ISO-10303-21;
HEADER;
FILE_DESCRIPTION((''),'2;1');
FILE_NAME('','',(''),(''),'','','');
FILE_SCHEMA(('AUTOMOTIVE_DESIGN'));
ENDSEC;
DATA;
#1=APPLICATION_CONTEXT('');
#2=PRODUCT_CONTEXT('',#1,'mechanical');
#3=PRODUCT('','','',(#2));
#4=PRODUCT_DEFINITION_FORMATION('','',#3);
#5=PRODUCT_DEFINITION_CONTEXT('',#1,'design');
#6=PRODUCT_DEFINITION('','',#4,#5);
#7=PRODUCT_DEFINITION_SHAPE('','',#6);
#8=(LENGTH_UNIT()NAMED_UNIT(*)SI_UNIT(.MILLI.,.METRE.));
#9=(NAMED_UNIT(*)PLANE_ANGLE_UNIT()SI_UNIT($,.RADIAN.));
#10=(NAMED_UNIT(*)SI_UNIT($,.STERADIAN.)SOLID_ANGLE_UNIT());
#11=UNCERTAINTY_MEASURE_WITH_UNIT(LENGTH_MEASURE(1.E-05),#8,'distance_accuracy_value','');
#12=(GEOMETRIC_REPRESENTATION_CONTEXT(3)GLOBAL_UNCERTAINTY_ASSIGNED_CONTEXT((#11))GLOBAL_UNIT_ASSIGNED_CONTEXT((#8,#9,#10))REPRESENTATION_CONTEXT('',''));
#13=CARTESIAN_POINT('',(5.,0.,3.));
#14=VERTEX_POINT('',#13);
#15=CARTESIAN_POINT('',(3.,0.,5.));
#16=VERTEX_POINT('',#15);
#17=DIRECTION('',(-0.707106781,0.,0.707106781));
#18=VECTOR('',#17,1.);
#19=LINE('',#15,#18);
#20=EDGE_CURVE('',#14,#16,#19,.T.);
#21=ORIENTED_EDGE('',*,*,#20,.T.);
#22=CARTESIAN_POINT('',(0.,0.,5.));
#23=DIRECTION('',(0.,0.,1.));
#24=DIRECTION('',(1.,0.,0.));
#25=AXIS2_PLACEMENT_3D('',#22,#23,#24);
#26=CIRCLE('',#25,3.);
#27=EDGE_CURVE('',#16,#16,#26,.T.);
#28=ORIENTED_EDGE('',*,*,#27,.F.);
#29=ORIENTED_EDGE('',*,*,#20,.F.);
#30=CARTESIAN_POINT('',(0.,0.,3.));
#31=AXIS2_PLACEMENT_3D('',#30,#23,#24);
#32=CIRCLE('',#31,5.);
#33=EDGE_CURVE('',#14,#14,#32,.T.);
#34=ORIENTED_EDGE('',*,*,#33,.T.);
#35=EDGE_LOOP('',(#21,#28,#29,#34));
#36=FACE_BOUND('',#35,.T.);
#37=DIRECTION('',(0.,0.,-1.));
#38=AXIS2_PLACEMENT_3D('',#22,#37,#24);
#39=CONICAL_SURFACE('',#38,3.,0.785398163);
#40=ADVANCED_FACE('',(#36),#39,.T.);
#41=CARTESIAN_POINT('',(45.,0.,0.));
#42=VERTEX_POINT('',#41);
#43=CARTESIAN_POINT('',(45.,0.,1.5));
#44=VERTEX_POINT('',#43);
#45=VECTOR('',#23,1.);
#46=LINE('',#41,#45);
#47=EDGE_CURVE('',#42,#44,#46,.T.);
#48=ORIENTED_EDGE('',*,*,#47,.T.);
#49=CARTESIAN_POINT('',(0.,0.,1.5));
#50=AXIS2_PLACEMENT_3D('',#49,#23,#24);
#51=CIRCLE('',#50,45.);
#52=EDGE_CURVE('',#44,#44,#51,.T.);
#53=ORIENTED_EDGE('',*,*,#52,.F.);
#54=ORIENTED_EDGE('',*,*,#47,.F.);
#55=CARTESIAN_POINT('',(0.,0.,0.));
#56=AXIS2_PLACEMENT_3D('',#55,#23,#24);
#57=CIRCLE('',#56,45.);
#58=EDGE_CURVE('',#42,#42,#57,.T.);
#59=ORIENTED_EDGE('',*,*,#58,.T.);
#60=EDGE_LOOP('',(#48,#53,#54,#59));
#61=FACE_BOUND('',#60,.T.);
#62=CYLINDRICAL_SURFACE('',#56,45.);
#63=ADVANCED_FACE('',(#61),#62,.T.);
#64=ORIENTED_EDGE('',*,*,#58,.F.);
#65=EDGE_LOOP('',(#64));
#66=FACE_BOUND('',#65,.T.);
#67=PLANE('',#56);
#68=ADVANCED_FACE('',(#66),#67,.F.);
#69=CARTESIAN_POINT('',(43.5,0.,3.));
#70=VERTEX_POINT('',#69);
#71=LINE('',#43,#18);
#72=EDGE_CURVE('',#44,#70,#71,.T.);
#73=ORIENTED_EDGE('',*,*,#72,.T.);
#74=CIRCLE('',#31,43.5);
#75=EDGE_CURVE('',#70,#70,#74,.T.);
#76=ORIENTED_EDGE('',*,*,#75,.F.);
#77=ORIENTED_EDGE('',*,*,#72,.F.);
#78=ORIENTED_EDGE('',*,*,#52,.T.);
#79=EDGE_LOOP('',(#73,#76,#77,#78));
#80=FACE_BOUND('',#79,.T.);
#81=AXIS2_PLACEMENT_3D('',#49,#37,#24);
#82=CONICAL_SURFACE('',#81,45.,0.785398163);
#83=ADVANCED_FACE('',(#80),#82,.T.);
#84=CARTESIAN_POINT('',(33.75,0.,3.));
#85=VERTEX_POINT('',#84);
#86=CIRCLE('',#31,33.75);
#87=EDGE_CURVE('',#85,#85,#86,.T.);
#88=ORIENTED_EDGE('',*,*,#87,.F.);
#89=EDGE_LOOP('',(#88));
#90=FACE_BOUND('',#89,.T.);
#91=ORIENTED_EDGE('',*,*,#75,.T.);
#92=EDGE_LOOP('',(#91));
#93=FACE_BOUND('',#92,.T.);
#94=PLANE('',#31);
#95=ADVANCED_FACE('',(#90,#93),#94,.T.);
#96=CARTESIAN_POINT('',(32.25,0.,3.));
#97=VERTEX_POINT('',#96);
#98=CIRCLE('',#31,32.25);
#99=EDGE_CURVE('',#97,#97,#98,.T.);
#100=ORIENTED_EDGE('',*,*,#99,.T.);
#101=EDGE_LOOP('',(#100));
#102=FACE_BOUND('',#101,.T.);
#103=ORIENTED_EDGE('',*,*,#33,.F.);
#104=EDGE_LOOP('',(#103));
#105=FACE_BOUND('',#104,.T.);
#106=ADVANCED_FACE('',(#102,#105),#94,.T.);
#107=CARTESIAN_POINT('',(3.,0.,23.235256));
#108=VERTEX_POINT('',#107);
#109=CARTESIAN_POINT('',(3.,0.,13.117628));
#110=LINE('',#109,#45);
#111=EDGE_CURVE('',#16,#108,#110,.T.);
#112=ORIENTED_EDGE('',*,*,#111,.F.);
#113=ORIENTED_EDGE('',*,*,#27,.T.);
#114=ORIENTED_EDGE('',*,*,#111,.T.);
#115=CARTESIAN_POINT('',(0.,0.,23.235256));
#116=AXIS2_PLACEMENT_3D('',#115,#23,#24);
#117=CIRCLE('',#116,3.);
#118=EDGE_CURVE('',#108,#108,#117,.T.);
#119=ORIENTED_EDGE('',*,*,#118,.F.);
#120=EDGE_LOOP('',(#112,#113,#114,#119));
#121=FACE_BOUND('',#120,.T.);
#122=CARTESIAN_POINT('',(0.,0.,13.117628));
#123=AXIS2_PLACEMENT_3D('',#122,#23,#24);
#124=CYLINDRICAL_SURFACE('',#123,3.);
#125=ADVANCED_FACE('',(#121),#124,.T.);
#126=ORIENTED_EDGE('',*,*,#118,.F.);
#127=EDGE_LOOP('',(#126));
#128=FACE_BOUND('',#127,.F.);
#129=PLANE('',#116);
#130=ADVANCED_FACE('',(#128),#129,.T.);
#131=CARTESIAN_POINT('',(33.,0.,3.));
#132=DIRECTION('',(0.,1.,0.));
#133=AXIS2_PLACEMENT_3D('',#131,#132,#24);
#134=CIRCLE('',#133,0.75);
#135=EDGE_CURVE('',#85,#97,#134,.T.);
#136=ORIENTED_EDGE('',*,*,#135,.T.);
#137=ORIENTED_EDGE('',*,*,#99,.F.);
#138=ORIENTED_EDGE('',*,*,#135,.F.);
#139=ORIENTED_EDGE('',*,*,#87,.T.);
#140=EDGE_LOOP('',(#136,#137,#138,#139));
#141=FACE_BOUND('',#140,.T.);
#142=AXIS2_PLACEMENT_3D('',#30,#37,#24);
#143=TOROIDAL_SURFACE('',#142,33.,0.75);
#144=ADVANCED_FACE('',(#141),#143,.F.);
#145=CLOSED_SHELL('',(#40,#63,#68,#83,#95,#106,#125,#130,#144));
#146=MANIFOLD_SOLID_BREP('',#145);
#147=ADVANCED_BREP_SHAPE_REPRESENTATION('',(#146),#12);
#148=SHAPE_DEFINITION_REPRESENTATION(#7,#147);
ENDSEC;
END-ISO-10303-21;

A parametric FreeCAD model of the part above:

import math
import FreeCAD as App
import Part
import Sketcher
Q = App.Units.Quantity


def edges_at(feature, points):
    """Names of the edges that pass closest to the given points."""
    edges = feature.Shape.Edges
    near = lambda p: min(range(len(edges)), key=lambda i: edges[i].distToShape(Part.Vertex(*p))[0])
    return sorted({f"Edge{near(p) + 1}" for p in points})

doc = App.newDocument("Part")
body = doc.addObject("PartDesign::Body", "Body")

sketch1 = doc.addObject("Sketcher::SketchObject", "Sketch")
body.addObject(sketch1)
sketch1.AttachmentSupport = (doc.XZ_Plane, [""])
sketch1.MapMode = "FlatFace"
sketch1.addGeometry(Part.LineSegment(App.Vector(0, 0, 0), App.Vector(45, 0, 0)), False)
sketch1.addGeometry(Part.LineSegment(App.Vector(45, 0, 0), App.Vector(45, 3, 0)), False)
sketch1.addGeometry(Part.LineSegment(App.Vector(45, 3, 0), App.Vector(33.8, 3, 0)), False)
sketch1.addGeometry(Part.ArcOfCircle(Part.Circle(App.Vector(33, 3, 0), App.Vector(0, 0, 1), 0.8), math.radians(180), math.radians(360)), False)
sketch1.addGeometry(Part.LineSegment(App.Vector(32.2, 3, 0), App.Vector(3, 3, 0)), False)
sketch1.addGeometry(Part.LineSegment(App.Vector(3, 3, 0), App.Vector(3, 23.2, 0)), False)
sketch1.addGeometry(Part.LineSegment(App.Vector(3, 23.2, 0), App.Vector(0, 23.2, 0)), False)
sketch1.addGeometry(Part.LineSegment(App.Vector(0, 23.2, 0), App.Vector(0, 0, 0)), False)
sketch1.addConstraint(Sketcher.Constraint("Coincident", 0, 2, 1, 1))
sketch1.addConstraint(Sketcher.Constraint("Coincident", 1, 2, 2, 1))
sketch1.addConstraint(Sketcher.Constraint("Coincident", 2, 2, 3, 2))
sketch1.addConstraint(Sketcher.Constraint("Coincident", 3, 1, 4, 1))
sketch1.addConstraint(Sketcher.Constraint("Coincident", 4, 2, 5, 1))
sketch1.addConstraint(Sketcher.Constraint("Coincident", 5, 2, 6, 1))
sketch1.addConstraint(Sketcher.Constraint("Coincident", 6, 2, 7, 1))
sketch1.addConstraint(Sketcher.Constraint("Coincident", 7, 2, 0, 1))
sketch1.addConstraint(Sketcher.Constraint("Horizontal", 0))
sketch1.addConstraint(Sketcher.Constraint("Vertical", 1))
sketch1.addConstraint(Sketcher.Constraint("Horizontal", 2))
sketch1.addConstraint(Sketcher.Constraint("Horizontal", 4))
sketch1.addConstraint(Sketcher.Constraint("Vertical", 5))
sketch1.addConstraint(Sketcher.Constraint("Horizontal", 6))
sketch1.addConstraint(Sketcher.Constraint("Vertical", 7))
sketch1.addConstraint(Sketcher.Constraint("Coincident", 7, 2, -1, 1))
sketch1.addConstraint(Sketcher.Constraint("Horizontal", 3, 3, 1, 2))
sketch1.addConstraint(Sketcher.Constraint("Horizontal", 2, 2, 3, 1))
sketch1.addConstraint(Sketcher.Constraint("Equal", 6, 1))
sketch1.addConstraint(Sketcher.Constraint("DistanceX", 0, 1, 0, 2, Q("45 mm")))
sketch1.addConstraint(Sketcher.Constraint("DistanceX", 6, 2, 6, 1, Q("3 mm")))
sketch1.addConstraint(Sketcher.Constraint("Radius", 3, Q("0.75 mm")))
sketch1.addConstraint(Sketcher.Constraint("DistanceX", -1, 1, 3, 3, Q("33 mm")))
sketch1.addConstraint(Sketcher.Constraint("DistanceY", 5, 1, 5, 2, Q("20.235256 mm")))
revolution = doc.addObject("PartDesign::Revolution", "Revolution")
body.addObject(revolution)
revolution.Profile = sketch1
revolution.ReferenceAxis = (sketch1, ["V_Axis"])
revolution.Angle = 360
doc.recompute()

chamfer = doc.addObject("PartDesign::Chamfer", "Chamfer")
body.addObject(chamfer)
chamfer.Base = (revolution, edges_at(revolution, [(-45, 0, 3)]))
chamfer.Size = 1.5
doc.recompute()

chamfer2 = doc.addObject("PartDesign::Chamfer", "Chamfer001")
body.addObject(chamfer2)
chamfer2.Base = (chamfer, edges_at(chamfer, [(-3, 0, 3)]))
chamfer2.Size = 2

doc.recompute()
